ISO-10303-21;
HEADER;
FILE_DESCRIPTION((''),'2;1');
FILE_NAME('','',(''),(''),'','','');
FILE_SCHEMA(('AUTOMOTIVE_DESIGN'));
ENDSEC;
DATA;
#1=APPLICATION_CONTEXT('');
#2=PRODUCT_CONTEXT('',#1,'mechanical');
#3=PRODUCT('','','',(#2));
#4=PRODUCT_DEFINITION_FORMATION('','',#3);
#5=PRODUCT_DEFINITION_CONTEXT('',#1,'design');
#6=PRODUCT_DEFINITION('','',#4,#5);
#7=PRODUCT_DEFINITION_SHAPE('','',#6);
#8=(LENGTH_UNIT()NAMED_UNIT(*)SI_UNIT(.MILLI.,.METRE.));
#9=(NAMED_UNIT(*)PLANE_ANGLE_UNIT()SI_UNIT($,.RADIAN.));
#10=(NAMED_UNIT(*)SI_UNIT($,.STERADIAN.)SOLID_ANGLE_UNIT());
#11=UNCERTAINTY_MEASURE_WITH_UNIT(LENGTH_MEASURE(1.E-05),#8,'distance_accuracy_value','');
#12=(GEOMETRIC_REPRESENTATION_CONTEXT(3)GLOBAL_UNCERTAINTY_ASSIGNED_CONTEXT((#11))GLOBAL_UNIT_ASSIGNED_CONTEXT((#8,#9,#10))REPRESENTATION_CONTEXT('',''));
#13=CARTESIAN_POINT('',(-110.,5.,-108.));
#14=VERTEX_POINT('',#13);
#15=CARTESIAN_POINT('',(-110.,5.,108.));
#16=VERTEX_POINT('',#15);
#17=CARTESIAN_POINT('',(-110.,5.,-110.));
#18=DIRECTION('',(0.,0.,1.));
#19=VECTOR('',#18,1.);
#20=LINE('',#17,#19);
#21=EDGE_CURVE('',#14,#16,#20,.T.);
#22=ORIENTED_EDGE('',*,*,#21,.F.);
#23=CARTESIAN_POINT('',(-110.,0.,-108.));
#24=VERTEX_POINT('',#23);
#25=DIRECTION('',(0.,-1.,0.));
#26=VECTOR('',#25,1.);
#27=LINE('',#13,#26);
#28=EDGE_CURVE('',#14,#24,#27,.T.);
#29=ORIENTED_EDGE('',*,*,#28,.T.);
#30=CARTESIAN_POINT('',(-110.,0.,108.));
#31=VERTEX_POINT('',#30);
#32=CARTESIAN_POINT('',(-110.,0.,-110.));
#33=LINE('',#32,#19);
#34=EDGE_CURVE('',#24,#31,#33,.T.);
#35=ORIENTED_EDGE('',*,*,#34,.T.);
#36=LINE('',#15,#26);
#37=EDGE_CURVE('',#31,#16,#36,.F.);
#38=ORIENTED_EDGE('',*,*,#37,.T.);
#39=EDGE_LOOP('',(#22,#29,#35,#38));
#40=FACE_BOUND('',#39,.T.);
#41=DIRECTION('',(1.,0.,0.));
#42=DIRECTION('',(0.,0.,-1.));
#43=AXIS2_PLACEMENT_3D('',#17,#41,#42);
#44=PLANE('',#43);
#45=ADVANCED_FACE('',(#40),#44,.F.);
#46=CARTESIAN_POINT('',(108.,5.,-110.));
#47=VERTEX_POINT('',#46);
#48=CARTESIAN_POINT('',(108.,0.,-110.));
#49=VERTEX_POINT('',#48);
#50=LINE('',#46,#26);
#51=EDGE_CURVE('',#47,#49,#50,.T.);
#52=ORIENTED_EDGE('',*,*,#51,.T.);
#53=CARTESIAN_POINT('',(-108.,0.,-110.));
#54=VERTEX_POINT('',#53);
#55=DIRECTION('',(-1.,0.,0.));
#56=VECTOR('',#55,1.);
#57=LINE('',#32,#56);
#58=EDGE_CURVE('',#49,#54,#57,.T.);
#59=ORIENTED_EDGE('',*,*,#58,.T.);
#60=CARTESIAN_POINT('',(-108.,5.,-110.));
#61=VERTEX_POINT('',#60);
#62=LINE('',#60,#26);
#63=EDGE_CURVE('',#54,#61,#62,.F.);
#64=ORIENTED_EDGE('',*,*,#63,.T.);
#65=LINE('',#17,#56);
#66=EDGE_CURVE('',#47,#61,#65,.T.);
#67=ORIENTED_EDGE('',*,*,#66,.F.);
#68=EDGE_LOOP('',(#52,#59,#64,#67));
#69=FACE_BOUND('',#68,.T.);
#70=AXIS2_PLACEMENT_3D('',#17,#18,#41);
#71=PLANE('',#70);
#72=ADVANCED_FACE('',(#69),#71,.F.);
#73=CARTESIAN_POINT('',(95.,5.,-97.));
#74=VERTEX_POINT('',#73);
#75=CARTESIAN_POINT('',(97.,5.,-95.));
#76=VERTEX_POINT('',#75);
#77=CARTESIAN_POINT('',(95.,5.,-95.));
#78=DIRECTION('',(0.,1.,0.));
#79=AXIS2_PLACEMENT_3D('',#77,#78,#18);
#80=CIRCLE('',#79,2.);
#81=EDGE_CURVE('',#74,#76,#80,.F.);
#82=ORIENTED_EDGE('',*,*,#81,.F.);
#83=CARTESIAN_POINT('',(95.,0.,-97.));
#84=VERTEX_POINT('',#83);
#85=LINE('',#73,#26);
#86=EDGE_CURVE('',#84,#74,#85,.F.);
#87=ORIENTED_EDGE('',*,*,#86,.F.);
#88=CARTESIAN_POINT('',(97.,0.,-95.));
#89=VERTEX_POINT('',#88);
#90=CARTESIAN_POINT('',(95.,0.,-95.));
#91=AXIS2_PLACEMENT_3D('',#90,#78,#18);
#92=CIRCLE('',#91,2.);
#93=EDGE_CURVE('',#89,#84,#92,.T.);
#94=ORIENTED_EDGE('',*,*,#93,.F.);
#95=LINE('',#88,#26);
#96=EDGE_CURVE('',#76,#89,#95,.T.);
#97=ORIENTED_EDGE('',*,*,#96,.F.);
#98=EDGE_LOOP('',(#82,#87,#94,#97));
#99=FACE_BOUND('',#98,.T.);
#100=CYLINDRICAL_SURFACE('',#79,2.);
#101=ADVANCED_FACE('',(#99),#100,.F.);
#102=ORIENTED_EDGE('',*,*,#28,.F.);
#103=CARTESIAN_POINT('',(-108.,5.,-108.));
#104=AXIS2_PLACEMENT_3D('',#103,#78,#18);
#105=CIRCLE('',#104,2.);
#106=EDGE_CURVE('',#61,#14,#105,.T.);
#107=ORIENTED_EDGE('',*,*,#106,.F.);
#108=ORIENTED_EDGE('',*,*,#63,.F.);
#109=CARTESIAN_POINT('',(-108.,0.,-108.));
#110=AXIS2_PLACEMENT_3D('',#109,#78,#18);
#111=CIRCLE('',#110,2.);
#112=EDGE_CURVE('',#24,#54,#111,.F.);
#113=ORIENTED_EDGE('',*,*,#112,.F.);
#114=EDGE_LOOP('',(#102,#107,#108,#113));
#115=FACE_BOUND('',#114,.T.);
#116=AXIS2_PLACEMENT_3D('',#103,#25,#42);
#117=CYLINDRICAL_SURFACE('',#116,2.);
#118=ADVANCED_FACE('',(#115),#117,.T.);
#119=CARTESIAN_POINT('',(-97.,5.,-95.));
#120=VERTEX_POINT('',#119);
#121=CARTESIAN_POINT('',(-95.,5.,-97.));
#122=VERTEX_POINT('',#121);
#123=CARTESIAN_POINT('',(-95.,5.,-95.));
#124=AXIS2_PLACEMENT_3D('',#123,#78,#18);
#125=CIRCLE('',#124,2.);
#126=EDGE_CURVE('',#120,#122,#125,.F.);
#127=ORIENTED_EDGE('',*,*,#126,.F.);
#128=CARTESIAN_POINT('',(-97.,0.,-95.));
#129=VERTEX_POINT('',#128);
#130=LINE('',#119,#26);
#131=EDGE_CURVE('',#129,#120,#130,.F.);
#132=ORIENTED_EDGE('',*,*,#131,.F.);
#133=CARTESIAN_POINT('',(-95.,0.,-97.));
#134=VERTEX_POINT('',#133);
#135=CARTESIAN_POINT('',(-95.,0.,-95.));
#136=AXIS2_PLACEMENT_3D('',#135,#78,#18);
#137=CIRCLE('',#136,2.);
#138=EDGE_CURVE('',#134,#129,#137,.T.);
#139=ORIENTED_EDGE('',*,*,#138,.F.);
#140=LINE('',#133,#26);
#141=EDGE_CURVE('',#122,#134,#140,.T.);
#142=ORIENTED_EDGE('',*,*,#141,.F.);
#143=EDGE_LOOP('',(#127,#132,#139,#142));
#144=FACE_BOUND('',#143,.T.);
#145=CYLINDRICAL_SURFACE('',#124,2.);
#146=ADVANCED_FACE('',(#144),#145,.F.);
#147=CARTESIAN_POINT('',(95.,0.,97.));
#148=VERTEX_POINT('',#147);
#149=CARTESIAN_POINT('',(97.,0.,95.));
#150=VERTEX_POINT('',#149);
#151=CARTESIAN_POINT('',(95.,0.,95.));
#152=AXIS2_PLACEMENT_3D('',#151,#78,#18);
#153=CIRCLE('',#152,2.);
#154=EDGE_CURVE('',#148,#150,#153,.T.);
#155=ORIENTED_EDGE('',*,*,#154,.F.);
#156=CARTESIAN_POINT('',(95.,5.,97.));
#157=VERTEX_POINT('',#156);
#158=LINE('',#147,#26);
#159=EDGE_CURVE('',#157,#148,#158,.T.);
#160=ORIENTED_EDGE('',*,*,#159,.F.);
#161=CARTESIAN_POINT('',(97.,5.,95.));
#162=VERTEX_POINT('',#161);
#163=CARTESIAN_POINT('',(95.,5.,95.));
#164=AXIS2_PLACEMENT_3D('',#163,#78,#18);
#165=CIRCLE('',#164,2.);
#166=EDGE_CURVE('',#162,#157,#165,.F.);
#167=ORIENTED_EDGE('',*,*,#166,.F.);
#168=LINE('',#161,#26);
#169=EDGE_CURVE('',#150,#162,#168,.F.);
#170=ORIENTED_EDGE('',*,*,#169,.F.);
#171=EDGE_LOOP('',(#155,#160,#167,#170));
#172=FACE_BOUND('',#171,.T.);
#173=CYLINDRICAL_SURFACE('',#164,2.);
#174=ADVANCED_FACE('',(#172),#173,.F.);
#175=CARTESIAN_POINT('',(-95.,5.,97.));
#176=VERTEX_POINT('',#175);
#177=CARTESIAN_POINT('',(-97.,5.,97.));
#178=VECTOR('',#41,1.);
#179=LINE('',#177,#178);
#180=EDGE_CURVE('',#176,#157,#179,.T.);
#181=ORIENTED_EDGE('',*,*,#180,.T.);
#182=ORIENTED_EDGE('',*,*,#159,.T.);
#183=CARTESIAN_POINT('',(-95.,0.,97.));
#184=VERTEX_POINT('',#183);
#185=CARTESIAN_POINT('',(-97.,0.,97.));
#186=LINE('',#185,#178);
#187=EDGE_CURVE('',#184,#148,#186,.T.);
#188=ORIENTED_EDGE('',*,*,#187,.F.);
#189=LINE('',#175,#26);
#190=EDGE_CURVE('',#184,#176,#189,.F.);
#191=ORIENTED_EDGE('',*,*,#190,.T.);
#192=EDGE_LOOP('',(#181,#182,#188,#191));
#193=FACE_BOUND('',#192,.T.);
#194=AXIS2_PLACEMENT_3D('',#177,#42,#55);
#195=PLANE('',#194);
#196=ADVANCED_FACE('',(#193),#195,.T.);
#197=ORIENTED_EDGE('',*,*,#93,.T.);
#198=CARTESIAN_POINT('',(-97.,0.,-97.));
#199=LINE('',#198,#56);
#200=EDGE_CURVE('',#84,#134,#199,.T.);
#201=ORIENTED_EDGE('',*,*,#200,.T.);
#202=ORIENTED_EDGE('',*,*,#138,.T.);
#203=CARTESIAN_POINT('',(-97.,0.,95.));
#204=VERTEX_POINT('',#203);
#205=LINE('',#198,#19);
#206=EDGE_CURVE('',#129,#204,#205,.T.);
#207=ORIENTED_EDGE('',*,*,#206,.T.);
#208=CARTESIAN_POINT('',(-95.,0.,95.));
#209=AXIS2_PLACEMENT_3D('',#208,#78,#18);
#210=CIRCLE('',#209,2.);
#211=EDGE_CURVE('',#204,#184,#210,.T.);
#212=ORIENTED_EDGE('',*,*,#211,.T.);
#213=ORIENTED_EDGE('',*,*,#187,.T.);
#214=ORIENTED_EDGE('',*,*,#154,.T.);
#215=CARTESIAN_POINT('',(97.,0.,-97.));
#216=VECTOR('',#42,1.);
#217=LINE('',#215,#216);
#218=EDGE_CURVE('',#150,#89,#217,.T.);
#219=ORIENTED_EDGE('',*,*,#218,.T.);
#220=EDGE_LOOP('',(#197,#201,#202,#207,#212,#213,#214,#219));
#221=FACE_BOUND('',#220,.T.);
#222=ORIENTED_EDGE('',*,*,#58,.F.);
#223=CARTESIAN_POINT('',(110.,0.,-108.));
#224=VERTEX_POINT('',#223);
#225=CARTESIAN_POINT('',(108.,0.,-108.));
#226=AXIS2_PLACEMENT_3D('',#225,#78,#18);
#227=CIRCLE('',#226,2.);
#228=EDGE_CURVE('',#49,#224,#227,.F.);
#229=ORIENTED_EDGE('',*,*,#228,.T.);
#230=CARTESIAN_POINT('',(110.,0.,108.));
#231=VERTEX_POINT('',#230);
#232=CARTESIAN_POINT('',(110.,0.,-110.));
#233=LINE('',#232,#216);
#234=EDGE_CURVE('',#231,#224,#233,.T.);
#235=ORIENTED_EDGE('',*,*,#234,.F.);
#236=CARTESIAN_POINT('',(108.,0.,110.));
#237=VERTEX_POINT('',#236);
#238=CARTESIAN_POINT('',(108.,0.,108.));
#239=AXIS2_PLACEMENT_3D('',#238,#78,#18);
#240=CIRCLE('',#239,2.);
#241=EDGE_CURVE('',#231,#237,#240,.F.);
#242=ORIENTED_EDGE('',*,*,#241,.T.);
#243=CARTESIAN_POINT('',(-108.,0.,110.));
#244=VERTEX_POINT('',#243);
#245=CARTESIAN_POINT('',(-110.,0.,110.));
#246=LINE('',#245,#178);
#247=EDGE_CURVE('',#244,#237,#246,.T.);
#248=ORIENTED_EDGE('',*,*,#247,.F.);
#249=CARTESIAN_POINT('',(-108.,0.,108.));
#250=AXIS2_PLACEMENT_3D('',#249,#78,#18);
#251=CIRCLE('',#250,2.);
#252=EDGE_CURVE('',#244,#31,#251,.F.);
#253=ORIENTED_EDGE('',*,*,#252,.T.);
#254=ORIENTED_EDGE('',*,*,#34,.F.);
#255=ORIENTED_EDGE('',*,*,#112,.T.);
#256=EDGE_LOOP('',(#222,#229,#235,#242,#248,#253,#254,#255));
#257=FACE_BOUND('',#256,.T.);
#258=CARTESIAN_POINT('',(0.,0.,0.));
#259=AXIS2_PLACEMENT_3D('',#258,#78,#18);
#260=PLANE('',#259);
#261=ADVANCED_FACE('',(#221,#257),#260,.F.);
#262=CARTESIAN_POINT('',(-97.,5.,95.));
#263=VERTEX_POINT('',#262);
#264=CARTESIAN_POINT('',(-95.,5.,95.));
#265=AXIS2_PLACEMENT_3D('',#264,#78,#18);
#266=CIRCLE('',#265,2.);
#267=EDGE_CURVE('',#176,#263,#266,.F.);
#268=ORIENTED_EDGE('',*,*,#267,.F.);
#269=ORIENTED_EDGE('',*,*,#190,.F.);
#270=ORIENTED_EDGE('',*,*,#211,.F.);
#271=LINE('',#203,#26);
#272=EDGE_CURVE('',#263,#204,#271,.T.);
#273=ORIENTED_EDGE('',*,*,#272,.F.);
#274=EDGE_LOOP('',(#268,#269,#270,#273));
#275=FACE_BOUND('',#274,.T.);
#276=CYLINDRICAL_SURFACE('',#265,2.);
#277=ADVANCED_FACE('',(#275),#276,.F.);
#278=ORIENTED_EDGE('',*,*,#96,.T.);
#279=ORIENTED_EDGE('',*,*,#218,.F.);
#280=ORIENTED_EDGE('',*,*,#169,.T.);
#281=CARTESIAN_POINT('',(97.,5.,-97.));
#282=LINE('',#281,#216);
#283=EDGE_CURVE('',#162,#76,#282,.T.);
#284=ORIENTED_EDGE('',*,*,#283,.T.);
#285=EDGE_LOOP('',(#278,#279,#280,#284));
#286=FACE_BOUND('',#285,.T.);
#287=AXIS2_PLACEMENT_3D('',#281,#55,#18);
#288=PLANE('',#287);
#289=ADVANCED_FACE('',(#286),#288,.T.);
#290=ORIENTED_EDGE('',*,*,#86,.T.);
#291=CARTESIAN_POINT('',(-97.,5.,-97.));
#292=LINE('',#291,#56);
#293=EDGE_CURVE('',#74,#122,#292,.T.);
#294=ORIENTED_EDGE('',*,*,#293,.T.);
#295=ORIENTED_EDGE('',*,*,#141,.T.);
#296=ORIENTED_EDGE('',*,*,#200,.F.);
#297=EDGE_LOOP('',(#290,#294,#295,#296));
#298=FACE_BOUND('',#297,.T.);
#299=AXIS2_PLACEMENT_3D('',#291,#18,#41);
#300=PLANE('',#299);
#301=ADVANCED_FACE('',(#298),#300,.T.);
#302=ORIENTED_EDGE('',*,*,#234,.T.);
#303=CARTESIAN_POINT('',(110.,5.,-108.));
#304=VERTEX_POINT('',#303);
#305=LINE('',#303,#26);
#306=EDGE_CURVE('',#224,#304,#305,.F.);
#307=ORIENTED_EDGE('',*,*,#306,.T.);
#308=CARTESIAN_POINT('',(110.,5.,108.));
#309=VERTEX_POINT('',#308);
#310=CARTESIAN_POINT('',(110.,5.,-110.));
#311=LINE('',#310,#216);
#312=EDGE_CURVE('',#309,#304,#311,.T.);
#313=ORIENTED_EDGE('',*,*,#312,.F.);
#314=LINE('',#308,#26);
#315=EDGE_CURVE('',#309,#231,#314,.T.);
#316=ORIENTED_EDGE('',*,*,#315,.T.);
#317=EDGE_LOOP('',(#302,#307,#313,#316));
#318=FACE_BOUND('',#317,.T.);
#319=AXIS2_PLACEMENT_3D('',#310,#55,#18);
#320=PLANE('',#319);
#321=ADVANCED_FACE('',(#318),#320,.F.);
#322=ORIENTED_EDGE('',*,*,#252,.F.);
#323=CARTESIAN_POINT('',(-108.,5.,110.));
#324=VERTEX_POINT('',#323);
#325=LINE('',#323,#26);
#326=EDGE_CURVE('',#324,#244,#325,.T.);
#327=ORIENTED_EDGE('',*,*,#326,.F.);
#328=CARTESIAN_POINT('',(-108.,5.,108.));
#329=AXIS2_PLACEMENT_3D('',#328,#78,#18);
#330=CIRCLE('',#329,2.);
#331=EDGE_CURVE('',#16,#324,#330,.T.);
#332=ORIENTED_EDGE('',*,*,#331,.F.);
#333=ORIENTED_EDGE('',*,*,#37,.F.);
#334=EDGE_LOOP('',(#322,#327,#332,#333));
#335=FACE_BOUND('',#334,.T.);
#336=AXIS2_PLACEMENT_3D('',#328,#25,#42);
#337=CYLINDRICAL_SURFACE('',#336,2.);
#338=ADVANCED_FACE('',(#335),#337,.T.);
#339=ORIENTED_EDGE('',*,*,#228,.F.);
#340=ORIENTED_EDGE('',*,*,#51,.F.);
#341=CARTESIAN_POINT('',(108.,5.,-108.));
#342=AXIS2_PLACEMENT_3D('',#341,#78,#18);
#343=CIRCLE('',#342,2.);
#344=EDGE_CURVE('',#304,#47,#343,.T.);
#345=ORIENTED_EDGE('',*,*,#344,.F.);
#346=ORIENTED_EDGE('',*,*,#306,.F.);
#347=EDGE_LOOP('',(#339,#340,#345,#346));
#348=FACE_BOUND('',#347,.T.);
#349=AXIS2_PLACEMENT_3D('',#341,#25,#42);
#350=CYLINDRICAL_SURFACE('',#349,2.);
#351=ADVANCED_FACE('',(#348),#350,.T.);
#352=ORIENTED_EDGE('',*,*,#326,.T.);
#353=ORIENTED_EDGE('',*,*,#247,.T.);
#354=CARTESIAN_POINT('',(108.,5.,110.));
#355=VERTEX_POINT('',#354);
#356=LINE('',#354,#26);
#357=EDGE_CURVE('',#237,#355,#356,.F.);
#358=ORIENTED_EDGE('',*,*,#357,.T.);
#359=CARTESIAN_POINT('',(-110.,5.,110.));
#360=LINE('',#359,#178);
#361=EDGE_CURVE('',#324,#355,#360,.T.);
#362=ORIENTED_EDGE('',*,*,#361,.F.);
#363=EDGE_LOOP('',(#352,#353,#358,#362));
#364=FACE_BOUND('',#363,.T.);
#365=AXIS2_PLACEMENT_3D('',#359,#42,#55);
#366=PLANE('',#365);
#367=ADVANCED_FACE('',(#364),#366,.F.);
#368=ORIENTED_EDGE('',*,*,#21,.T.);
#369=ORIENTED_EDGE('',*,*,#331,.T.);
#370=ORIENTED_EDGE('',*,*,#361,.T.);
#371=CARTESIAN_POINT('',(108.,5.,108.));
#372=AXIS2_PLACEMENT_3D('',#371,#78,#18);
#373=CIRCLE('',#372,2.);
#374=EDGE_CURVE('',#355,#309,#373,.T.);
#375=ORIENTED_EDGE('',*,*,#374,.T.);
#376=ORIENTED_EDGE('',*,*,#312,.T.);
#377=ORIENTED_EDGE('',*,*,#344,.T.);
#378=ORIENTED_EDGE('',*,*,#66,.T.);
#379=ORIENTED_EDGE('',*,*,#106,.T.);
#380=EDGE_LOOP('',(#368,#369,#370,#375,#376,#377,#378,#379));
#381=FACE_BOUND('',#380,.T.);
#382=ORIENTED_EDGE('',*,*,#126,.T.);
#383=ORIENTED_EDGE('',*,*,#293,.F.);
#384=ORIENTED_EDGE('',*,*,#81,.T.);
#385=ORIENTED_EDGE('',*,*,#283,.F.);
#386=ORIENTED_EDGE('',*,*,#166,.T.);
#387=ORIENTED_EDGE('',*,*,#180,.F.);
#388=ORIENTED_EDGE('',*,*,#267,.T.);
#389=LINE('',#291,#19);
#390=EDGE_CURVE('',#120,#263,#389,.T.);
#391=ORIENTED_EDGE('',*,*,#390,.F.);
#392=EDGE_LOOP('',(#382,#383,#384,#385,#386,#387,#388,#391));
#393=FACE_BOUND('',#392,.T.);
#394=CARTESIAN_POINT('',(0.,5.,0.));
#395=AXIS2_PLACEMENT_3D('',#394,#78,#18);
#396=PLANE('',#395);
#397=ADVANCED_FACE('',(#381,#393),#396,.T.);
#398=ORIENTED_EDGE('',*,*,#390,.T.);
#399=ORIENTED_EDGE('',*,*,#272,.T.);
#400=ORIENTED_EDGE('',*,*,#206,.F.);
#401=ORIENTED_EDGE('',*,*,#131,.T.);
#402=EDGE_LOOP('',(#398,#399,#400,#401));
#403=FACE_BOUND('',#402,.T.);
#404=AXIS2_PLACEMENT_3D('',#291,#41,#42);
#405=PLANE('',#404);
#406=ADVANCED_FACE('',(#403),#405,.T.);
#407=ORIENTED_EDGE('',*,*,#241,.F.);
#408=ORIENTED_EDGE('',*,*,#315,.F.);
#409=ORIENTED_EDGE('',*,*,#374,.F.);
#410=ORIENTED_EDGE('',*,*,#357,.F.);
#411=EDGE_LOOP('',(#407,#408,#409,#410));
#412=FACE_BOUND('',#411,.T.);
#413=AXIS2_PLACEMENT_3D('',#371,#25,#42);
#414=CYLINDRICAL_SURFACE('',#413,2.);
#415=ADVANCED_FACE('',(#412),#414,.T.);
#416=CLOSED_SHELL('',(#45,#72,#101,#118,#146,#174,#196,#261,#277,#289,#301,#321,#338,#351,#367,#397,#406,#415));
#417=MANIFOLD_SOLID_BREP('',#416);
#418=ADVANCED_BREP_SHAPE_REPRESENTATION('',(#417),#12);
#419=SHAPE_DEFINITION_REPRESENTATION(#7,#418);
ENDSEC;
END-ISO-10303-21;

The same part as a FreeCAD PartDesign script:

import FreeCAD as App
import Part
import Sketcher


def edges_at(feature, points):
    """Names of the edges that pass closest to the given points."""
    edges = feature.Shape.Edges
    near = lambda p: min(range(len(edges)), key=lambda i: edges[i].distToShape(Part.Vertex(*p))[0])
    return sorted({f"Edge{near(p) + 1}" for p in points})

doc = App.newDocument("Part")
body = doc.addObject("PartDesign::Body", "Body")

sketch1 = body.newObject("Sketcher::SketchObject", "Sketch")
sketch1.AttachmentSupport = (doc.getObject("XZ_Plane"), [""])
sketch1.MapMode = "FlatFace"
sketch1.addGeometry(Part.LineSegment(App.Vector(-110, -110, 0), App.Vector(-110, 110, 0)), False)
sketch1.addGeometry(Part.LineSegment(App.Vector(-110, 110, 0), App.Vector(110, 110, 0)), False)
sketch1.addGeometry(Part.LineSegment(App.Vector(110, 110, 0), App.Vector(110, -110, 0)), False)
sketch1.addGeometry(Part.LineSegment(App.Vector(110, -110, 0), App.Vector(-110, -110, 0)), False)
sketch1.addGeometry(Part.LineSegment(App.Vector(97, 97, 0), App.Vector(-97, 97, 0)), False)
sketch1.addGeometry(Part.LineSegment(App.Vector(-97, 97, 0), App.Vector(-97, -97, 0)), False)
sketch1.addGeometry(Part.LineSegment(App.Vector(-97, -97, 0), App.Vector(97, -97, 0)), False)
sketch1.addGeometry(Part.LineSegment(App.Vector(97, -97, 0), App.Vector(97, 97, 0)), False)
sketch1.addConstraint(Sketcher.Constraint("Coincident", 0, 2, 1, 1))
sketch1.addConstraint(Sketcher.Constraint("Coincident", 1, 2, 2, 1))
sketch1.addConstraint(Sketcher.Constraint("Coincident", 2, 2, 3, 1))
sketch1.addConstraint(Sketcher.Constraint("Coincident", 3, 2, 0, 1))
sketch1.addConstraint(Sketcher.Constraint("Coincident", 4, 2, 5, 1))
sketch1.addConstraint(Sketcher.Constraint("Coincident", 5, 2, 6, 1))
sketch1.addConstraint(Sketcher.Constraint("Coincident", 6, 2, 7, 1))
sketch1.addConstraint(Sketcher.Constraint("Coincident", 7, 2, 4, 1))
sketch1.addConstraint(Sketcher.Constraint("Vertical", 0))
sketch1.addConstraint(Sketcher.Constraint("Horizontal", 1))
sketch1.addConstraint(Sketcher.Constraint("Vertical", 2))
sketch1.addConstraint(Sketcher.Constraint("Horizontal", 3))
sketch1.addConstraint(Sketcher.Constraint("Horizontal", 4))
sketch1.addConstraint(Sketcher.Constraint("Vertical", 5))
sketch1.addConstraint(Sketcher.Constraint("Horizontal", 6))
sketch1.addConstraint(Sketcher.Constraint("Vertical", 7))
sketch1.addConstraint(Sketcher.Constraint("Symmetric", 0, 2, 2, 2, -1, 1))
sketch1.addConstraint(Sketcher.Constraint("Symmetric", 4, 2, 6, 2, -1, 1))
sketch1.addConstraint(Sketcher.Constraint("Equal", 3, 0))
sketch1.addConstraint(Sketcher.Constraint("Equal", 6, 5))
sketch1.addConstraint(Sketcher.Constraint("DistanceX", 1, 1, 1, 2, 220.0))
sketch1.addConstraint(Sketcher.Constraint("DistanceX", 4, 2, 4, 1, 194.0))
pad1 = body.newObject("PartDesign::Pad", "Pad")
pad1.Profile = sketch1
pad1.Length = 5
pad1.Reversed = True
doc.recompute()

fillet = body.newObject("PartDesign::Fillet", "Fillet")
fillet.Base = (pad1, edges_at(pad1, [
    (97, 2.5, 97),
    (97, 2.5, -97),
    (-97, 2.5, -97),
    (-97, 2.5, 97),
    (110, 2.5, 110),
    (-110, 2.5, 110),
    (-110, 2.5, -110),
    (110, 2.5, -110),
]))
fillet.Radius = 2

doc.recompute()
